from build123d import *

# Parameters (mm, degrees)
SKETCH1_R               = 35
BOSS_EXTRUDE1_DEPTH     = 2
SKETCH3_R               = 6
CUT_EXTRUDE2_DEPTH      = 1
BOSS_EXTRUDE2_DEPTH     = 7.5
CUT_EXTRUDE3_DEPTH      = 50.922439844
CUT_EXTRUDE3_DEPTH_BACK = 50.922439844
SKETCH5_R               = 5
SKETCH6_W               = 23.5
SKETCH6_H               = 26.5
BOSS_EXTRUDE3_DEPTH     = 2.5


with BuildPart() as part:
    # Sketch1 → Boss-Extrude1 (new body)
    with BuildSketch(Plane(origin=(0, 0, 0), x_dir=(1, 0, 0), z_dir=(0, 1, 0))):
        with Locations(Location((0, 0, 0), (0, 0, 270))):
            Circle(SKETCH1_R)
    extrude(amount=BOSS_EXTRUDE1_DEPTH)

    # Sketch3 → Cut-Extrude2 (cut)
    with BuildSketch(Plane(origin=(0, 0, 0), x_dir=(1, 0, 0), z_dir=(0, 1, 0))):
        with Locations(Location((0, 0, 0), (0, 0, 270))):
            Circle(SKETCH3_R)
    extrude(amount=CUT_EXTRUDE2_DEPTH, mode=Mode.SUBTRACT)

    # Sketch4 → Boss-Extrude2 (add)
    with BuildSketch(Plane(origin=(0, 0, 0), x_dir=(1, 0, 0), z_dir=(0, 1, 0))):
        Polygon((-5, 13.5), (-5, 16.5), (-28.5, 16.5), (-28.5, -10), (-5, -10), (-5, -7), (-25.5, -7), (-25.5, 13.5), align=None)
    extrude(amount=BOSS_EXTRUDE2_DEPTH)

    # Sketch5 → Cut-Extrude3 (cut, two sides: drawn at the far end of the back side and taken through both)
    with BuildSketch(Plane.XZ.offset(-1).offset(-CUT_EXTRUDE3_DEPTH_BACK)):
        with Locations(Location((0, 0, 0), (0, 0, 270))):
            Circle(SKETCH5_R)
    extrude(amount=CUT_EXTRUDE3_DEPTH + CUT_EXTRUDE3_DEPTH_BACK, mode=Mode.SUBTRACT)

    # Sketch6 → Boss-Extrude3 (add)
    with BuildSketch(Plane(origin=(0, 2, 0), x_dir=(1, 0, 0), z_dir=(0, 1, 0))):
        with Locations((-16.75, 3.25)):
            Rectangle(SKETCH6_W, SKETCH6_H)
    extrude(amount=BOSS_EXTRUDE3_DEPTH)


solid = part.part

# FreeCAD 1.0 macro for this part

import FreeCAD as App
import Part
import Sketcher
Q = App.Units.Quantity

doc = App.newDocument("Part")
body = doc.addObject("PartDesign::Body", "Body")

sketch1 = doc.addObject("Sketcher::SketchObject", "Sketch")
body.addObject(sketch1)
sketch1.AttachmentSupport = (doc.XZ_Plane, [""])
sketch1.MapMode = "FlatFace"
sketch1.addGeometry(Part.Circle(App.Vector(0, 0, 0), App.Vector(0, 0, 1), 35), False)
sketch1.addConstraint(Sketcher.Constraint("Coincident", 0, 3, -1, 1))
sketch1.addConstraint(Sketcher.Constraint("Diameter", 0, Q("70 mm")))
pad1 = doc.addObject("PartDesign::Pad", "Pad")
body.addObject(pad1)
pad1.Profile = sketch1
pad1.Length = 2
pad1.Reversed = True

sketch2 = doc.addObject("Sketcher::SketchObject", "Sketch001")
body.addObject(sketch2)
sketch2.AttachmentSupport = (doc.XZ_Plane, [""])
sketch2.MapMode = "FlatFace"
sketch2.addGeometry(Part.Circle(App.Vector(0, 0, 0), App.Vector(0, 0, 1), 6), False)
sketch2.addConstraint(Sketcher.Constraint("Coincident", 0, 3, -1, 1))
sketch2.addConstraint(Sketcher.Constraint("Diameter", 0, Q("12 mm")))
pocket1 = doc.addObject("PartDesign::Pocket", "Pocket")
body.addObject(pocket1)
pocket1.Profile = sketch2
pocket1.Length = 1

sketch3 = doc.addObject("Sketcher::SketchObject", "Sketch002")
body.addObject(sketch3)
sketch3.AttachmentSupport = (doc.XZ_Plane, [""])
sketch3.MapMode = "FlatFace"
sketch3.addGeometry(Part.LineSegment(App.Vector(-5, -13.5, 0), App.Vector(-5, -16.5, 0)), False)
sketch3.addGeometry(Part.LineSegment(App.Vector(-5, -16.5, 0), App.Vector(-28.5, -16.5, 0)), False)
sketch3.addGeometry(Part.LineSegment(App.Vector(-28.5, -16.5, 0), App.Vector(-28.5, 10, 0)), False)
sketch3.addGeometry(Part.LineSegment(App.Vector(-28.5, 10, 0), App.Vector(-5, 10, 0)), False)
sketch3.addGeometry(Part.LineSegment(App.Vector(-5, 10, 0), App.Vector(-5, 7, 0)), False)
sketch3.addGeometry(Part.LineSegment(App.Vector(-5, 7, 0), App.Vector(-25.5, 7, 0)), False)
sketch3.addGeometry(Part.LineSegment(App.Vector(-25.5, 7, 0), App.Vector(-25.5, -13.5, 0)), False)
sketch3.addGeometry(Part.LineSegment(App.Vector(-25.5, -13.5, 0), App.Vector(-5, -13.5, 0)), False)
sketch3.addConstraint(Sketcher.Constraint("Coincident", 0, 2, 1, 1))
sketch3.addConstraint(Sketcher.Constraint("Coincident", 1, 2, 2, 1))
sketch3.addConstraint(Sketcher.Constraint("Coincident", 2, 2, 3, 1))
sketch3.addConstraint(Sketcher.Constraint("Coincident", 3, 2, 4, 1))
sketch3.addConstraint(Sketcher.Constraint("Coincident", 4, 2, 5, 1))
sketch3.addConstraint(Sketcher.Constraint("Coincident", 5, 2, 6, 1))
sketch3.addConstraint(Sketcher.Constraint("Coincident", 6, 2, 7, 1))
sketch3.addConstraint(Sketcher.Constraint("Coincident", 7, 2, 0, 1))
sketch3.addConstraint(Sketcher.Constraint("Vertical", 0))
sketch3.addConstraint(Sketcher.Constraint("Horizontal", 1))
sketch3.addConstraint(Sketcher.Constraint("Vertical", 2))
sketch3.addConstraint(Sketcher.Constraint("Horizontal", 3))
sketch3.addConstraint(Sketcher.Constraint("Vertical", 4))
sketch3.addConstraint(Sketcher.Constraint("Horizontal", 5))
sketch3.addConstraint(Sketcher.Constraint("Vertical", 6))
sketch3.addConstraint(Sketcher.Constraint("Horizontal", 7))
sketch3.addConstraint(Sketcher.Constraint("Vertical", 0, 2, 3, 2))
sketch3.addConstraint(Sketcher.Constraint("Equal", 0, 4))
sketch3.addConstraint(Sketcher.Constraint("Equal", 7, 6))
sketch3.addConstraint(Sketcher.Constraint("DistanceY", 0, 2, 0, 1, Q("3 mm")))
sketch3.addConstraint(Sketcher.Constraint("DistanceX", 1, 2, 1, 1, Q("23.5 mm")))
sketch3.addConstraint(Sketcher.Constraint("DistanceX", 5, 2, 5, 1, Q("20.5 mm")))
sketch3.addConstraint(Sketcher.Constraint("DistanceX", 0, 2, -1, 1, Q("5 mm")))
sketch3.addConstraint(Sketcher.Constraint("DistanceY", -1, 1, 2, 2, Q("10 mm")))
pad2 = doc.addObject("PartDesign::Pad", "Pad001")
body.addObject(pad2)
pad2.Profile = sketch3
pad2.Length = 7.5
pad2.Reversed = True

sketch4 = doc.addObject("Sketcher::SketchObject", "Sketch003")
body.addObject(sketch4)
sketch4.AttachmentSupport = (doc.XZ_Plane, [""])
sketch4.MapMode = "FlatFace"
sketch4.AttachmentOffset = App.Placement(App.Vector(0, 0, -1), App.Rotation())
sketch4.addGeometry(Part.Circle(App.Vector(0, 0, 0), App.Vector(0, 0, 1), 5), False)
sketch4.addConstraint(Sketcher.Constraint("Coincident", 0, 3, -1, 1))
sketch4.addConstraint(Sketcher.Constraint("Diameter", 0, Q("10 mm")))
pocket2 = doc.addObject("PartDesign::Pocket", "Pocket001")
body.addObject(pocket2)
pocket2.Profile = sketch4
pocket2.Type = "ThroughAll"
pocket2.Midplane = True

sketch5 = doc.addObject("Sketcher::SketchObject", "Sketch004")
body.addObject(sketch5)
sketch5.AttachmentSupport = (doc.XZ_Plane, [""])
sketch5.MapMode = "FlatFace"
sketch5.AttachmentOffset = App.Placement(App.Vector(0, 0, -2), App.Rotation())
sketch5.addGeometry(Part.LineSegment(App.Vector(-28, -16, 0), App.Vector(-28, 10, 0)), False)
sketch5.addGeometry(Part.LineSegment(App.Vector(-28, 10, 0), App.Vector(-5, 10, 0)), False)
sketch5.addGeometry(Part.LineSegment(App.Vector(-5, 10, 0), App.Vector(-5, -16, 0)), False)
sketch5.addGeometry(Part.LineSegment(App.Vector(-5, -16, 0), App.Vector(-28, -16, 0)), False)
sketch5.addConstraint(Sketcher.Constraint("Coincident", 0, 2, 1, 1))
sketch5.addConstraint(Sketcher.Constraint("Coincident", 1, 2, 2, 1))
sketch5.addConstraint(Sketcher.Constraint("Coincident", 2, 2, 3, 1))
sketch5.addConstraint(Sketcher.Constraint("Coincident", 3, 2, 0, 1))
sketch5.addConstraint(Sketcher.Constraint("Vertical", 0))
sketch5.addConstraint(Sketcher.Constraint("Horizontal", 1))
sketch5.addConstraint(Sketcher.Constraint("Vertical", 2))
sketch5.addConstraint(Sketcher.Constraint("Horizontal", 3))
sketch5.addConstraint(Sketcher.Constraint("DistanceX", 1, 1, 1, 2, Q("23.5 mm")))
sketch5.addConstraint(Sketcher.Constraint("DistanceY", 0, 1, 0, 2, Q("26.5 mm")))
sketch5.addConstraint(Sketcher.Constraint("DistanceY", -1, 1, 0, 2, Q("10 mm")))
sketch5.addConstraint(Sketcher.Constraint("DistanceX", 1, 2, -1, 1, Q("5 mm")))
pad3 = doc.addObject("PartDesign::Pad", "Pad002")
body.addObject(pad3)
pad3.Profile = sketch5
pad3.Length = 2.5
pad3.Reversed = True

doc.recompute()
